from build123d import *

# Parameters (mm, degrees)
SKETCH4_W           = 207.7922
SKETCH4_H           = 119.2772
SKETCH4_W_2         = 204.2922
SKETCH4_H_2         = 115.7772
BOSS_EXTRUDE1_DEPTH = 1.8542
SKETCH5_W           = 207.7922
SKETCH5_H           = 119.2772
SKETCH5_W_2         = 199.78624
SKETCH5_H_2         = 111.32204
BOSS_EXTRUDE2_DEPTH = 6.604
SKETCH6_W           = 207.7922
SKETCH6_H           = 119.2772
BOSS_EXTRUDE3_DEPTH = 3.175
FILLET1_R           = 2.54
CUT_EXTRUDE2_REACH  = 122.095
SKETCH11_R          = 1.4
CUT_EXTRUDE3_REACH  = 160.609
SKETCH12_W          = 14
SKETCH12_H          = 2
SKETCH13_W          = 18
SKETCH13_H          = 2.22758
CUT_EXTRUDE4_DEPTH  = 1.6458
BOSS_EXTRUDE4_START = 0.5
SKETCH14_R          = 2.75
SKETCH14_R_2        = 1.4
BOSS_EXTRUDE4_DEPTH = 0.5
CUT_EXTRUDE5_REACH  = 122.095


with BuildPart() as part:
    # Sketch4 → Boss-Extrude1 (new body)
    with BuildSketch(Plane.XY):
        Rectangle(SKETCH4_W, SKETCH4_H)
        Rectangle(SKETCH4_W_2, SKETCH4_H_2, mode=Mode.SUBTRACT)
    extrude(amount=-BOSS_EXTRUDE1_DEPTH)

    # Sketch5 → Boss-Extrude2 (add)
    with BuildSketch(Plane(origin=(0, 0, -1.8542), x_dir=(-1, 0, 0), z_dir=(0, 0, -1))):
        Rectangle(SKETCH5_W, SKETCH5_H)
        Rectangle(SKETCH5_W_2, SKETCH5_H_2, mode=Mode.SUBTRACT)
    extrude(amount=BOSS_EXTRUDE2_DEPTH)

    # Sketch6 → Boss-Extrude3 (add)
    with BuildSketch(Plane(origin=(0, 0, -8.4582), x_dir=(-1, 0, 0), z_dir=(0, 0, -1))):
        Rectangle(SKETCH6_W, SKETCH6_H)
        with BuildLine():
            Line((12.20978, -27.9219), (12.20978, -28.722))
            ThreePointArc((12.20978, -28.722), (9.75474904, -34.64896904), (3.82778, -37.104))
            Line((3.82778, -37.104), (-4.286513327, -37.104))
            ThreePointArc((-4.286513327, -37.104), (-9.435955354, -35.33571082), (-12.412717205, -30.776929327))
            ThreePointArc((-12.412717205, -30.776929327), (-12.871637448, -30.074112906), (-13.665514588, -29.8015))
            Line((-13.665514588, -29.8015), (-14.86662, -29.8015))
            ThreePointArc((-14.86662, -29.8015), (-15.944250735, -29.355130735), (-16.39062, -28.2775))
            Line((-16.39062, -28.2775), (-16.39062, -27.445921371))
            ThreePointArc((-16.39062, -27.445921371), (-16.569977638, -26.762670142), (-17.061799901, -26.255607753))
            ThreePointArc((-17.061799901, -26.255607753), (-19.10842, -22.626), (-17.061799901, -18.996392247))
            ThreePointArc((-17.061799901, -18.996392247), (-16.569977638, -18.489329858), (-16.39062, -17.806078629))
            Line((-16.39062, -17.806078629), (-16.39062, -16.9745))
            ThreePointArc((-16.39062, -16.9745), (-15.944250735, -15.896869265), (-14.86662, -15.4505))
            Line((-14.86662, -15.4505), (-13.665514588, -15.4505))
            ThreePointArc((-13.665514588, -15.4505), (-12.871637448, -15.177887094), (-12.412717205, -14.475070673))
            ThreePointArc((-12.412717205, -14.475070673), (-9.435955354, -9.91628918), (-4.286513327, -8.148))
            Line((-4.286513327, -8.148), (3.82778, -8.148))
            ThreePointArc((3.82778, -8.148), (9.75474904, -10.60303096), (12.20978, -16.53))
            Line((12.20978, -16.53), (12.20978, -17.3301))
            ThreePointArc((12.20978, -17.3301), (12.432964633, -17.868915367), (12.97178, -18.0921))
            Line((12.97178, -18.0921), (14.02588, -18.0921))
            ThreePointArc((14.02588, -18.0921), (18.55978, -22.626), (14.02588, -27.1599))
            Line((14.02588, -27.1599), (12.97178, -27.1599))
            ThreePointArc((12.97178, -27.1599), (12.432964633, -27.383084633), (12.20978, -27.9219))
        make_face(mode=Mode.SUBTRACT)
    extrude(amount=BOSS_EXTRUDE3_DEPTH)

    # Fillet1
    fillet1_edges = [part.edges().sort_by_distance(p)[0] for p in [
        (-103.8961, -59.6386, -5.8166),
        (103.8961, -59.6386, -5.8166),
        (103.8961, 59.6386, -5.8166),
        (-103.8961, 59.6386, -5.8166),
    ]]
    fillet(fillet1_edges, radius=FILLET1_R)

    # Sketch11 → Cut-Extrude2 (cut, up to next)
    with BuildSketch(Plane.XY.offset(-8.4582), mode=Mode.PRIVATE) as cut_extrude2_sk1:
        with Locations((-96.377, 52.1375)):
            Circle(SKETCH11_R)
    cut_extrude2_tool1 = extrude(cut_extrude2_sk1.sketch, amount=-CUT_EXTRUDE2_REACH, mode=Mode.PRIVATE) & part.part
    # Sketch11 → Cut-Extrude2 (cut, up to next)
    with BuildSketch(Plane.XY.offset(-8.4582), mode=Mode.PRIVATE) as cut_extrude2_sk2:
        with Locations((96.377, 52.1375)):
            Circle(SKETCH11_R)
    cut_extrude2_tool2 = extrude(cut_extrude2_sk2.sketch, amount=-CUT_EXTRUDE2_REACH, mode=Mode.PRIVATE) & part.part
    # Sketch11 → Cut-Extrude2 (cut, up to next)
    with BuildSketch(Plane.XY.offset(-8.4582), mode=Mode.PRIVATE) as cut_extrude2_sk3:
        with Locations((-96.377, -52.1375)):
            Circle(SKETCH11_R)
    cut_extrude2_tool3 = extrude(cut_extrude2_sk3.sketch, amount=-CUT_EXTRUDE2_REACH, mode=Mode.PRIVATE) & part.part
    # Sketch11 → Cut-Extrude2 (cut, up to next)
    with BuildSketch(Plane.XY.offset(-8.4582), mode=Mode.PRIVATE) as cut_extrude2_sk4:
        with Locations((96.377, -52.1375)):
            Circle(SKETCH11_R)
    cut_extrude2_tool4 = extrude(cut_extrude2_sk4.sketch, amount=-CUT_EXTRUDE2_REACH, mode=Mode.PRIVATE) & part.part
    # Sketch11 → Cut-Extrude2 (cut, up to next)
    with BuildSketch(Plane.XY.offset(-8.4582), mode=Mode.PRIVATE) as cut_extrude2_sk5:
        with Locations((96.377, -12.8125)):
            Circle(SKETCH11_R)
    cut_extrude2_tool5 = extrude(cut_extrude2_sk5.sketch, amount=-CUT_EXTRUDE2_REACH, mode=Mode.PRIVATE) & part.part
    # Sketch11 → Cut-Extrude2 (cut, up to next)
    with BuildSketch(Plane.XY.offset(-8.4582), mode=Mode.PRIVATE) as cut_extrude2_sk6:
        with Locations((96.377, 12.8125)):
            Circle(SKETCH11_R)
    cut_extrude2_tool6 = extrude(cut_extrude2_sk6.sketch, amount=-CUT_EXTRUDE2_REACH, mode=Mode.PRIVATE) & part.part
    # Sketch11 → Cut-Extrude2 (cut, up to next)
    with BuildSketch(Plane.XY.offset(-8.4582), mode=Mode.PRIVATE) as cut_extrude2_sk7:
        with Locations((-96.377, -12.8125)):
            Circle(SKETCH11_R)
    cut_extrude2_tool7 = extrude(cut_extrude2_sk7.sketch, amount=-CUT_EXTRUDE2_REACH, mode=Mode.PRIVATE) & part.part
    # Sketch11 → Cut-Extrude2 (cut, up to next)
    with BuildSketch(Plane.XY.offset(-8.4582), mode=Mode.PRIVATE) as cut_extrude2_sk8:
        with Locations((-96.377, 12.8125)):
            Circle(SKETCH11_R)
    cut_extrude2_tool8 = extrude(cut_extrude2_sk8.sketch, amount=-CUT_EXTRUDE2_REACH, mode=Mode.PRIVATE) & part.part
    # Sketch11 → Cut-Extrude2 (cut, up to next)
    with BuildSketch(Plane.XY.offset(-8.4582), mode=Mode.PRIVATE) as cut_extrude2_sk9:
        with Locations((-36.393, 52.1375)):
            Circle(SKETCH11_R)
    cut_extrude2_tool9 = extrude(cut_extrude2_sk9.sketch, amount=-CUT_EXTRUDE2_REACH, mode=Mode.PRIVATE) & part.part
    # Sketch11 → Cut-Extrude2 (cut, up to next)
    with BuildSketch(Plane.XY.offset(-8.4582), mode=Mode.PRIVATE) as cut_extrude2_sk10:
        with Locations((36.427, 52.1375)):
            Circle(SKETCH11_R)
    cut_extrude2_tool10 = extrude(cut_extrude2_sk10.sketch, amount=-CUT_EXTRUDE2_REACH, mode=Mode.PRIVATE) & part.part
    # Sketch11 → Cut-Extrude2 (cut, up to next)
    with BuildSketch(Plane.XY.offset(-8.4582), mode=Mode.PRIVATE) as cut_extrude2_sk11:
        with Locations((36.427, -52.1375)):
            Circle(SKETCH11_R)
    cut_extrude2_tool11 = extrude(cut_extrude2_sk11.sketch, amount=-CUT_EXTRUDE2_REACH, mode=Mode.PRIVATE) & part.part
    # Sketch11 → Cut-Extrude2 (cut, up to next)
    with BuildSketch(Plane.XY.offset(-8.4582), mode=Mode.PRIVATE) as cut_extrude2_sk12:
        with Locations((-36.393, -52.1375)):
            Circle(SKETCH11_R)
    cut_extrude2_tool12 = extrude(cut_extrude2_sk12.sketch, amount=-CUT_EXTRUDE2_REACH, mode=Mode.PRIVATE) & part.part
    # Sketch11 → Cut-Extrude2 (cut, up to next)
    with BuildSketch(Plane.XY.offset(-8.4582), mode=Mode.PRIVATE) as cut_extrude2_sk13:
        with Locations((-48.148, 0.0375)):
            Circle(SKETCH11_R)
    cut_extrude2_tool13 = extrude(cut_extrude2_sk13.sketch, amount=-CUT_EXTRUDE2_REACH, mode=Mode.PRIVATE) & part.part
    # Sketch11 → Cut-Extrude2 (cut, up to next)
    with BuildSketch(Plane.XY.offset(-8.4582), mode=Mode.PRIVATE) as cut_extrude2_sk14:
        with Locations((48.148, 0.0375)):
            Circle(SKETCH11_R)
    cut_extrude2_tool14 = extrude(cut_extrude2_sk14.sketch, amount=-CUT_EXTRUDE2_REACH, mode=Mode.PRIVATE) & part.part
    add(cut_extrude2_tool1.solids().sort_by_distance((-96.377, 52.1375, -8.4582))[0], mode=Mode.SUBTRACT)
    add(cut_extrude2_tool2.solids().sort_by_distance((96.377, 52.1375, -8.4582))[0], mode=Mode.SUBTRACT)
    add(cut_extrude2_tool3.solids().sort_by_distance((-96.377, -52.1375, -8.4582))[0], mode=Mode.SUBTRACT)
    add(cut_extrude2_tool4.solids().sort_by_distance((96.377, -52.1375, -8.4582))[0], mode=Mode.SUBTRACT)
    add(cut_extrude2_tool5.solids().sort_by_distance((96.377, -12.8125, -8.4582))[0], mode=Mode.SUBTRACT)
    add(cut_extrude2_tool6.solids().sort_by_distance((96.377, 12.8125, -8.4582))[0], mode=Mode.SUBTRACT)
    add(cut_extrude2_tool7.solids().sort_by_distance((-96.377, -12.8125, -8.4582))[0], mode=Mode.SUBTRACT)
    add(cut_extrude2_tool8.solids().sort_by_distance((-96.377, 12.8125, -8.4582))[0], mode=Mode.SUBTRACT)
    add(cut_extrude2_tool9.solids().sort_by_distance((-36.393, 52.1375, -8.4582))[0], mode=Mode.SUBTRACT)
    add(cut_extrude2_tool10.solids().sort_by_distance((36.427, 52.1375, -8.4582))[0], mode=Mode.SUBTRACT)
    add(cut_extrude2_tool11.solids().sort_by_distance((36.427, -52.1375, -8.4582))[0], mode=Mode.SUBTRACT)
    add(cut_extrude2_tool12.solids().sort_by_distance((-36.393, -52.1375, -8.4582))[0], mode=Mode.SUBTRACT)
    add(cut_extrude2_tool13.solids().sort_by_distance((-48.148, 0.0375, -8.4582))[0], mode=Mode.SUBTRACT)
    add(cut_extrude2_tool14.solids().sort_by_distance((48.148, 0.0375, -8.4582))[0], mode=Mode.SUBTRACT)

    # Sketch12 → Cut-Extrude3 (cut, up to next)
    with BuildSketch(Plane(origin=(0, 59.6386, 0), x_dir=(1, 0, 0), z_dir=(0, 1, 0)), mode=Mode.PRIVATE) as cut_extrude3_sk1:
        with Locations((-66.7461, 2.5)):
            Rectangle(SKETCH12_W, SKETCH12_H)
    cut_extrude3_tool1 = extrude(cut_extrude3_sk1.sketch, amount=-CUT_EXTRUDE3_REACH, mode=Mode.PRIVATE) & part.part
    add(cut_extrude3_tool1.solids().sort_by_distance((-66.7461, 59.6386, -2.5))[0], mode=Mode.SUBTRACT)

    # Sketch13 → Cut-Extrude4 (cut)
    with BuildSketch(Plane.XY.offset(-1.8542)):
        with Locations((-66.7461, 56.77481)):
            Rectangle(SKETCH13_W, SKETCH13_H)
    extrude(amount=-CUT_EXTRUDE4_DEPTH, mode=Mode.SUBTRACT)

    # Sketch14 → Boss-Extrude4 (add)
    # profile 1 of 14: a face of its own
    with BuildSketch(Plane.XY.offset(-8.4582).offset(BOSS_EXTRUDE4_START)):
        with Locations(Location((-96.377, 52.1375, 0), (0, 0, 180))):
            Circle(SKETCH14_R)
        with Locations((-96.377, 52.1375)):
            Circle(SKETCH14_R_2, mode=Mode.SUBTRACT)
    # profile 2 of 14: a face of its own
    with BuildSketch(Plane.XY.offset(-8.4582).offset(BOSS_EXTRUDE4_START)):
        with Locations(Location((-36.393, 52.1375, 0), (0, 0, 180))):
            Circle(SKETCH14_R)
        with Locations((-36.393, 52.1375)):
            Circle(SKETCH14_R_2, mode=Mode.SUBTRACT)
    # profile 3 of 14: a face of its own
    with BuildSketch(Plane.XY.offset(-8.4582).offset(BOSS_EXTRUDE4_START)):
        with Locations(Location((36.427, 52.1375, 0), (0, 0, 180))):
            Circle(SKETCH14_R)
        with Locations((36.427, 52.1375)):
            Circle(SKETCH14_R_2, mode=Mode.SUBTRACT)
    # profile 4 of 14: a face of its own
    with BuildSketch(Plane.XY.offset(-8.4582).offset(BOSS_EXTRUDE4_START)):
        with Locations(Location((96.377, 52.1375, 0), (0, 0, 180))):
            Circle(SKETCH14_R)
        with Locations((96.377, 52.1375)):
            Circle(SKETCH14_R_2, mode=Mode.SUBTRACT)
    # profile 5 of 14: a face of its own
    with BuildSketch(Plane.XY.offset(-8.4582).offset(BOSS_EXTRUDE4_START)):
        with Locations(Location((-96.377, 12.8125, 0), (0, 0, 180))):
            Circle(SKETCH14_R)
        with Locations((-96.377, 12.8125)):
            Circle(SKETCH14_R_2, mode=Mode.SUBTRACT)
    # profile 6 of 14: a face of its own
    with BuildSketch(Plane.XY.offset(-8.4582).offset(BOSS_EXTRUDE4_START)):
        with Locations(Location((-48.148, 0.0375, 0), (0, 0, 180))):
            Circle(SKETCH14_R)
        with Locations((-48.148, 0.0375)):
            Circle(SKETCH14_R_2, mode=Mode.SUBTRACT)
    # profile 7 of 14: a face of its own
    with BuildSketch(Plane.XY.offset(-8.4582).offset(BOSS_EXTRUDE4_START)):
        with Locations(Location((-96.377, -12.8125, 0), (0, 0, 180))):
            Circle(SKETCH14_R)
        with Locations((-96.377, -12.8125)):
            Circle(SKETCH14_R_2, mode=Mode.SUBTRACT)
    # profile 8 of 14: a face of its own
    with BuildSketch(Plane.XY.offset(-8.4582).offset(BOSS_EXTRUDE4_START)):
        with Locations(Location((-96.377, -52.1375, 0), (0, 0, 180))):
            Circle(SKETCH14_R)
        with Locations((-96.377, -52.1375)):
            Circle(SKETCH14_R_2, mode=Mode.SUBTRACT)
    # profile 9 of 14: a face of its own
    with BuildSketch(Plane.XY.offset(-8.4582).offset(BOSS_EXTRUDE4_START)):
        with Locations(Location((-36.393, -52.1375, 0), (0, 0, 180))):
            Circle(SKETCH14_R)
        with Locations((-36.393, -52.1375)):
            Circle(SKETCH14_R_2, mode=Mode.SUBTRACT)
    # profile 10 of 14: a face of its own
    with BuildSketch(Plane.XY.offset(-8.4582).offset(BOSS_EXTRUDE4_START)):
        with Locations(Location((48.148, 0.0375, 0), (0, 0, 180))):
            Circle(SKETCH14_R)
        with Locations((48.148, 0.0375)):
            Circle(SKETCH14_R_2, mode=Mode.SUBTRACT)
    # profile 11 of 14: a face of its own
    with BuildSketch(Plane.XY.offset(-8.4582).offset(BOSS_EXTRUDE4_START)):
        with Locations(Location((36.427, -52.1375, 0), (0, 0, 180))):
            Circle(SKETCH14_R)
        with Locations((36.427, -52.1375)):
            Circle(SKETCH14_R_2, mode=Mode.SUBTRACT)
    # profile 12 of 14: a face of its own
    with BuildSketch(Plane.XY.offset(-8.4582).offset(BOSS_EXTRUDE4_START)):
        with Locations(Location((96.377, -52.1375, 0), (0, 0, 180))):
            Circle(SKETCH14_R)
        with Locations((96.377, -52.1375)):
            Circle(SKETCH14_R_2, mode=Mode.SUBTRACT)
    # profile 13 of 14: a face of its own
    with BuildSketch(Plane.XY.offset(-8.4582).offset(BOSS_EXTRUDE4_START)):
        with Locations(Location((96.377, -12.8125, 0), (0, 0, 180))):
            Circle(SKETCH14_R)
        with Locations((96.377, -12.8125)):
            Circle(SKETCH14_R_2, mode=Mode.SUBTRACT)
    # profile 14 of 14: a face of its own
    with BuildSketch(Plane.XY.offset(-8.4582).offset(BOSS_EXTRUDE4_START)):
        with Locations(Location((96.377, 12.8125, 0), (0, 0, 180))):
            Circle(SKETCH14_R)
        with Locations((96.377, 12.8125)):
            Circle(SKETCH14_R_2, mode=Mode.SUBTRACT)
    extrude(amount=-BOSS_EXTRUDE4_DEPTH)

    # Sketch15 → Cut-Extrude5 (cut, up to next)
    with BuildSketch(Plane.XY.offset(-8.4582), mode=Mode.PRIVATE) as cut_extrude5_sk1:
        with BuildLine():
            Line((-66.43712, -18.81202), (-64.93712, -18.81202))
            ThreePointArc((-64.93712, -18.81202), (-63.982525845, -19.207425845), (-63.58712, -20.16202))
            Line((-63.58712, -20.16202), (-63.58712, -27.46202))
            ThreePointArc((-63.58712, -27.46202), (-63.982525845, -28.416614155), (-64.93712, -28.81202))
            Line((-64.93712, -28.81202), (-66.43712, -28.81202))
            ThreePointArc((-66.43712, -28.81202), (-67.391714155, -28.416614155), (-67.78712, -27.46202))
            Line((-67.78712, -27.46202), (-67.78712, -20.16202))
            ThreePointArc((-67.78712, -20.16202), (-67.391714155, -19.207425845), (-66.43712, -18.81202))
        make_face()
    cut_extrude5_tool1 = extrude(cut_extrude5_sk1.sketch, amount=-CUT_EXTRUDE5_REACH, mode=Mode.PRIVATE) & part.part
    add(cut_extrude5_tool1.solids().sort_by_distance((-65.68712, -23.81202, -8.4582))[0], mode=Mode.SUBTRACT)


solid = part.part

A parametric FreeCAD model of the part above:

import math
import FreeCAD as App
import Part
import Sketcher
Q = App.Units.Quantity


def edges_at(feature, points):
    """Names of the edges that pass closest to the given points."""
    edges = feature.Shape.Edges
    near = lambda p: min(range(len(edges)), key=lambda i: edges[i].distToShape(Part.Vertex(*p))[0])
    return sorted({f"Edge{near(p) + 1}" for p in points})


def add_polygon(sketch, points):
    """Adds a closed chain of lines whose ends are joined by coincident constraints."""
    first, n = sketch.GeometryCount, len(points)
    for a, b in zip(points, points[1:] + points[:1]):
        sketch.addGeometry(Part.LineSegment(App.Vector(*a, 0), App.Vector(*b, 0)), False)
    for i in range(n):
        sketch.addConstraint(Sketcher.Constraint("Coincident", first + i, 2, first + (i + 1) % n, 1))

doc = App.newDocument("Part")
params = doc.addObject("Spreadsheet::Sheet", "Params")
for row, (alias, value) in enumerate([
    ("sketch1_width", "8.043 in"),
    ("pad1_length", "0.073 in"),
    ("pad2_length", "0.26 in"),
    ("sketch3_radius", "0.03 in"),
    ("sketch3_radius2", "0.33 in"),
    ("sketch3_radius3", "0.06 in"),
    ("sketch3_radius4", "0.167 in"),
    ("pad3_length", "0.125 in"),
    ("fillet_radius", "0.1 in"),
    ("pocket16_length", "1.6458 mm"),
    ("pad4_length", "0.5 mm"),
], start=1):
    params.set(f"A{row}", alias)
    params.set(f"B{row}", "=" + value)
    params.setAlias(f"B{row}", alias)

body = doc.addObject("PartDesign::Body", "Body")

# Sketch on XY plane
sketch1 = body.newObject("Sketcher::SketchObject", "Sketch")
sketch1.AttachmentSupport = (doc.getObject("XY_Plane"), [""])
sketch1.MapMode = "FlatFace"
add_polygon(sketch1, [(-104, 60), (-104, -60), (104, -60), (104, 60)])  # lines 0-3
add_polygon(sketch1, [(102, -58), (-102, -58), (-102, 58), (102, 58)])  # lines 4-7
sketch1.addConstraint([
    Sketcher.Constraint("Vertical", 0),
    Sketcher.Constraint("Horizontal", 1),
    Sketcher.Constraint("Vertical", 2),
    Sketcher.Constraint("Horizontal", 3),
    Sketcher.Constraint("Horizontal", 4),
    Sketcher.Constraint("Vertical", 5),
    Sketcher.Constraint("Horizontal", 6),
    Sketcher.Constraint("Vertical", 7),
    Sketcher.Constraint("Symmetric", 0, 2, 2, 2, -1, 1),
    Sketcher.Constraint("Symmetric", 4, 2, 6, 2, -1, 1),
    Sketcher.Constraint("DistanceX", 4, 2, 4, 1, Q("8.043 in")),
    Sketcher.Constraint("DistanceX", 1, 1, 1, 2, Q("207.7922 mm")),
    Sketcher.Constraint("DistanceY", 0, 2, 0, 1, Q("119.2772 mm")),
    Sketcher.Constraint("DistanceY", 5, 1, 5, 2, Q("115.7772 mm")),
])
sketch1.setExpression("Constraints[18]", "Params.sketch1_width")
pad1 = body.newObject("PartDesign::Pad", "Pad")
pad1.Profile = sketch1
pad1.setExpression("Length", "Params.pad1_length")
pad1.Reversed = True

# Sketch on XY plane
sketch2 = body.newObject("Sketcher::SketchObject", "Sketch001")
sketch2.AttachmentSupport = (doc.getObject("XY_Plane"), [""])
sketch2.MapMode = "FlatFace"
sketch2.AttachmentOffset = App.Placement(App.Vector(0, 0, -0.073 * 25.4), App.Rotation())
add_polygon(sketch2, [(104, 60), (104, -60), (-104, -60), (-104, 60)])  # lines 0-3
add_polygon(sketch2, [(-100, -56), (100, -56), (100, 56), (-100, 56)])  # lines 4-7
sketch2.addConstraint([
    Sketcher.Constraint("Vertical", 0),
    Sketcher.Constraint("Horizontal", 1),
    Sketcher.Constraint("Vertical", 2),
    Sketcher.Constraint("Horizontal", 3),
    Sketcher.Constraint("Horizontal", 4),
    Sketcher.Constraint("Vertical", 5),
    Sketcher.Constraint("Horizontal", 6),
    Sketcher.Constraint("Vertical", 7),
    Sketcher.Constraint("Symmetric", 0, 2, 2, 2, -1, 1),
    Sketcher.Constraint("Symmetric", 4, 2, 6, 2, -1, 1),
    Sketcher.Constraint("DistanceX", 4, 1, 4, 2, Q("7.8656 in")),
    Sketcher.Constraint("DistanceX", 1, 2, 1, 1, Q("207.7922 mm")),
    Sketcher.Constraint("DistanceY", 0, 2, 0, 1, Q("119.2772 mm")),
    Sketcher.Constraint("DistanceY", 5, 1, 5, 2, Q("111.32204 mm")),
])
pad2 = body.newObject("PartDesign::Pad", "Pad001")
pad2.Profile = sketch2
pad2.setExpression("Length", "Params.pad2_length")
pad2.Reversed = True

# Sketch on XY plane
sketch3 = body.newObject("Sketcher::SketchObject", "Sketch002")
sketch3.AttachmentSupport = (doc.getObject("XY_Plane"), [""])
sketch3.MapMode = "FlatFace"
sketch3.AttachmentOffset = App.Placement(App.Vector(0, 0, -0.333 * 25.4), App.Rotation())
add_polygon(sketch3, [(103.9, 59.6), (103.9, -59.6), (-103.9, -59.6), (-103.9, 59.6)])  # lines 0-3
sketch3.addGeometry(Part.ArcOfCircle(Part.Circle(App.Vector(-13, -27.9, 0), App.Vector(0, 0, 1), 0.8), math.radians(0), math.radians(90)), False)  # 4
sketch3.addGeometry(Part.LineSegment(App.Vector(-12.2, -27.9, 0), App.Vector(-12.2, -28.7, 0)), False)  # 5
sketch3.addGeometry(Part.ArcOfCircle(Part.Circle(App.Vector(-3.8, -28.7, 0), App.Vector(0, 0, 1), 8.4), math.radians(180), math.radians(270)), False)  # 6
sketch3.addGeometry(Part.LineSegment(App.Vector(-3.8, -37.1, 0), App.Vector(4.3, -37.1, 0)), False)  # 7
sketch3.addGeometry(Part.ArcOfCircle(Part.Circle(App.Vector(4.3, -28.7, 0), App.Vector(0, 0, 1), 8.4), math.radians(-90), math.radians(-14)), False)  # 8
sketch3.addGeometry(Part.ArcOfCircle(Part.Circle(App.Vector(13.7, -31.1, 0), App.Vector(0, 0, 1), 1.3), math.radians(90), math.radians(166)), False)  # 9
sketch3.addGeometry(Part.LineSegment(App.Vector(13.7, -29.8, 0), App.Vector(14.9, -29.8, 0)), False)  # 10
sketch3.addGeometry(Part.ArcOfCircle(Part.Circle(App.Vector(14.9, -28.3, 0), App.Vector(0, 0, 1), 1.5), math.radians(-90), math.radians(0)), False)  # 11
sketch3.addGeometry(Part.LineSegment(App.Vector(16.4, -28.3, 0), App.Vector(16.4, -27.4, 0)), False)  # 12
sketch3.addGeometry(Part.ArcOfCircle(Part.Circle(App.Vector(17.8, -27.4, 0), App.Vector(0, 0, 1), 1.4), math.radians(121), math.radians(180)), False)  # 13
sketch3.addGeometry(Part.ArcOfCircle(Part.Circle(App.Vector(14.9, -22.6, 0), App.Vector(0, 0, 1), 4.2), math.radians(-59), math.radians(59)), False)  # 14
sketch3.addGeometry(Part.ArcOfCircle(Part.Circle(App.Vector(17.8, -17.8, 0), App.Vector(0, 0, 1), 1.4), math.radians(180), math.radians(239)), False)  # 15
sketch3.addGeometry(Part.LineSegment(App.Vector(16.4, -17.8, 0), App.Vector(16.4, -17, 0)), False)  # 16
sketch3.addGeometry(Part.ArcOfCircle(Part.Circle(App.Vector(14.9, -17, 0), App.Vector(0, 0, 1), 1.5), math.radians(0), math.radians(90)), False)  # 17
sketch3.addGeometry(Part.LineSegment(App.Vector(14.9, -15.5, 0), App.Vector(13.7, -15.5, 0)), False)  # 18
sketch3.addGeometry(Part.ArcOfCircle(Part.Circle(App.Vector(13.7, -14.2, 0), App.Vector(0, 0, 1), 1.3), math.radians(-166), math.radians(-90)), False)  # 19
sketch3.addGeometry(Part.ArcOfCircle(Part.Circle(App.Vector(4.3, -16.5, 0), App.Vector(0, 0, 1), 8.4), math.radians(14), math.radians(90)), False)  # 20
sketch3.addGeometry(Part.LineSegment(App.Vector(4.3, -8.1, 0), App.Vector(-3.8, -8.1, 0)), False)  # 21
sketch3.addGeometry(Part.ArcOfCircle(Part.Circle(App.Vector(-3.8, -16.5, 0), App.Vector(0, 0, 1), 8.4), math.radians(90), math.radians(180)), False)  # 22
sketch3.addGeometry(Part.LineSegment(App.Vector(-12.2, -16.5, 0), App.Vector(-12.2, -17.3, 0)), False)  # 23
sketch3.addGeometry(Part.ArcOfCircle(Part.Circle(App.Vector(-13, -17.3, 0), App.Vector(0, 0, 1), 0.8), math.radians(-90), math.radians(0)), False)  # 24
sketch3.addGeometry(Part.LineSegment(App.Vector(-13, -18.1, 0), App.Vector(-14, -18.1, 0)), False)  # 25
sketch3.addGeometry(Part.ArcOfCircle(Part.Circle(App.Vector(-14, -22.6, 0), App.Vector(0, 0, 1), 4.5), math.radians(90), math.radians(270)), False)  # 26
sketch3.addGeometry(Part.LineSegment(App.Vector(-14, -27.2, 0), App.Vector(-13, -27.2, 0)), False)  # 27
sketch3.addConstraint([
    Sketcher.Constraint("Tangent", 4, 1, 5, 1),
    Sketcher.Constraint("Tangent", 5, 2, 6, 1),
    Sketcher.Constraint("Tangent", 6, 2, 7, 1),
    Sketcher.Constraint("Tangent", 7, 2, 8, 1),
    Sketcher.Constraint("Tangent", 8, 2, 9, 2),
    Sketcher.Constraint("Tangent", 9, 1, 10, 1),
    Sketcher.Constraint("Tangent", 10, 2, 11, 1),
    Sketcher.Constraint("Tangent", 11, 2, 12, 1),
    Sketcher.Constraint("Tangent", 12, 2, 13, 2),
    Sketcher.Constraint("Tangent", 13, 1, 14, 1),
    Sketcher.Constraint("Tangent", 14, 2, 15, 2),
    Sketcher.Constraint("Tangent", 15, 1, 16, 1),
    Sketcher.Constraint("Tangent", 16, 2, 17, 1),
    Sketcher.Constraint("Tangent", 17, 2, 18, 1),
    Sketcher.Constraint("Tangent", 18, 2, 19, 2),
    Sketcher.Constraint("Tangent", 19, 1, 20, 1),
    Sketcher.Constraint("Tangent", 20, 2, 21, 1),
    Sketcher.Constraint("Tangent", 21, 2, 22, 1),
    Sketcher.Constraint("Tangent", 22, 2, 23, 1),
    Sketcher.Constraint("Tangent", 23, 2, 24, 2),
    Sketcher.Constraint("Tangent", 24, 1, 25, 1),
    Sketcher.Constraint("Tangent", 25, 2, 26, 1),
    Sketcher.Constraint("Tangent", 26, 2, 27, 1),
    Sketcher.Constraint("Tangent", 27, 2, 4, 2),
    Sketcher.Constraint("Vertical", 0),
    Sketcher.Constraint("Horizontal", 1),
    Sketcher.Constraint("Vertical", 2),
    Sketcher.Constraint("Horizontal", 3),
    Sketcher.Constraint("Vertical", 5),
    Sketcher.Constraint("Horizontal", 7),
    Sketcher.Constraint("Horizontal", 10),
    Sketcher.Constraint("Vertical", 12),
    Sketcher.Constraint("Vertical", 16),
    Sketcher.Constraint("Horizontal", 18),
    Sketcher.Constraint("Horizontal", 21),
    Sketcher.Constraint("Vertical", 23),
    Sketcher.Constraint("Horizontal", 25),
    Sketcher.Constraint("Horizontal", 27),
    Sketcher.Constraint("Equal", 6, 8),
    Sketcher.Constraint("Equal", 13, 15),
    Sketcher.Constraint("Equal", 11, 17),
    Sketcher.Constraint("Equal", 9, 19),
    Sketcher.Constraint("Equal", 8, 20),
    Sketcher.Constraint("Equal", 20, 22),
    Sketcher.Constraint("Equal", 4, 24),
    Sketcher.Constraint("Symmetric", 0, 2, 2, 2, -1, 1),
    Sketcher.Constraint("Horizontal", 14, 3, 26, 3),
    Sketcher.Constraint("Vertical", 11, 3, 14, 3),
    Sketcher.Constraint("Vertical", 13, 3, 15, 3),
    Sketcher.Constraint("Vertical", 9, 3, 19, 3),
    Sketcher.Constraint("Vertical", 8, 3, 20, 3),
    Sketcher.Constraint("Vertical", 6, 3, 22, 3),
    Sketcher.Constraint("Equal", 12, 16),
    Sketcher.Constraint("Radius", 4, Q("0.03 in")),
    Sketcher.Constraint("Radius", 6, Q("0.33 in")),
    Sketcher.Constraint("Radius", 11, Q("0.06 in")),
    Sketcher.Constraint("Radius", 14, Q("0.167 in")),
    Sketcher.Constraint("Radius", 26, Q("0.1785 in")),
    Sketcher.Constraint("DistanceY", 8, 3, 14, 3, Q("0.24 in")),
    Sketcher.Constraint("DistanceX", 25, 2, 25, 1, Q("0.0415 in")),
    Sketcher.Constraint("Radius", 13, Q("1.391079 mm")),
    Sketcher.Constraint("DistanceX", 6, 3, 11, 3, Q("0.736 in")),
    Sketcher.Constraint("DistanceY", 11, 3, 4, 3, Q("0.014 in")),
    Sketcher.Constraint("DistanceX", 1, 2, 1, 1, Q("207.7922 mm")),
    Sketcher.Constraint("DistanceY", 0, 2, 0, 1, Q("119.2772 mm")),
    Sketcher.Constraint("DistanceX", 4, 3, -1, 1, Q("0.5107 in")),
    Sketcher.Constraint("Radius", 9, Q("1.292233 mm")),
    Sketcher.Constraint("DistanceY", 4, 3, -1, 1, Q("27.9219 mm")),
    Sketcher.Constraint("DistanceX", 7, 1, 7, 2, Q("8.114293 mm")),
])
sketch3.setExpression("Constraints[57]", "Params.sketch3_radius")
sketch3.setExpression("Constraints[58]", "Params.sketch3_radius2")
sketch3.setExpression("Constraints[59]", "Params.sketch3_radius3")
sketch3.setExpression("Constraints[60]", "Params.sketch3_radius4")
pad3 = body.newObject("PartDesign::Pad", "Pad002")
pad3.Profile = sketch3
pad3.setExpression("Length", "Params.pad3_length")
pad3.Reversed = True
doc.recompute()

fillet = body.newObject("PartDesign::Fillet", "Fillet")
fillet.Base = (pad3, edges_at(pad3, [
    (-103.896, -59.639, -5.817),
    (103.896, -59.639, -5.817),
    (103.896, 59.639, -5.817),
    (-103.896, 59.639, -5.817),
]))
fillet.setExpression("Radius", "Params.fillet_radius")

# Sketch on XY plane
sketch4 = body.newObject("Sketcher::SketchObject", "Sketch003")
sketch4.AttachmentSupport = (doc.getObject("XY_Plane"), [""])
sketch4.MapMode = "FlatFace"
sketch4.AttachmentOffset = App.Placement(App.Vector(0, 0, -0.333 * 25.4), App.Rotation())
sketch4.addGeometry(Part.Circle(App.Vector(-96.4, 52.1, 0), App.Vector(0, 0, 1), 1.4), False)
sketch4.addConstraint([
    Sketcher.Constraint("Diameter", 0, Q("2.8 mm")),
    Sketcher.Constraint("DistanceX", 0, 3, -1, 1, Q("96.377 mm")),
    Sketcher.Constraint("DistanceY", -1, 1, 0, 3, Q("52.1375 mm")),
])
pocket1 = body.newObject("PartDesign::Pocket", "Pocket")
pocket1.Profile = sketch4
pocket1.Type = "UpToFirst"

# Sketch on XY plane
sketch5 = body.newObject("Sketcher::SketchObject", "Sketch004")
sketch5.AttachmentSupport = (doc.getObject("XY_Plane"), [""])
sketch5.MapMode = "FlatFace"
sketch5.AttachmentOffset = App.Placement(App.Vector(0, 0, -0.333 * 25.4), App.Rotation())
sketch5.addGeometry(Part.Circle(App.Vector(96.4, 52.1, 0), App.Vector(0, 0, 1), 1.4), False)
sketch5.addConstraint([
    Sketcher.Constraint("Diameter", 0, Q("2.8 mm")),
    Sketcher.Constraint("DistanceX", -1, 1, 0, 3, Q("96.377 mm")),
    Sketcher.Constraint("DistanceY", -1, 1, 0, 3, Q("52.1375 mm")),
])
pocket2 = body.newObject("PartDesign::Pocket", "Pocket001")
pocket2.Profile = sketch5
pocket2.Type = "UpToFirst"

# Sketch on XY plane
sketch6 = body.newObject("Sketcher::SketchObject", "Sketch005")
sketch6.AttachmentSupport = (doc.getObject("XY_Plane"), [""])
sketch6.MapMode = "FlatFace"
sketch6.AttachmentOffset = App.Placement(App.Vector(0, 0, -0.333 * 25.4), App.Rotation())
sketch6.addGeometry(Part.Circle(App.Vector(-96.4, -52.1, 0), App.Vector(0, 0, 1), 1.4), False)
sketch6.addConstraint([
    Sketcher.Constraint("Diameter", 0, Q("2.8 mm")),
    Sketcher.Constraint("DistanceX", 0, 3, -1, 1, Q("96.377 mm")),
    Sketcher.Constraint("DistanceY", 0, 3, -1, 1, Q("52.1375 mm")),
])
pocket3 = body.newObject("PartDesign::Pocket", "Pocket002")
pocket3.Profile = sketch6
pocket3.Type = "UpToFirst"

# Sketch on XY plane
sketch7 = body.newObject("Sketcher::SketchObject", "Sketch006")
sketch7.AttachmentSupport = (doc.getObject("XY_Plane"), [""])
sketch7.MapMode = "FlatFace"
sketch7.AttachmentOffset = App.Placement(App.Vector(0, 0, -0.333 * 25.4), App.Rotation())
sketch7.addGeometry(Part.Circle(App.Vector(96.4, -52.1, 0), App.Vector(0, 0, 1), 1.4), False)
sketch7.addConstraint([
    Sketcher.Constraint("Diameter", 0, Q("2.8 mm")),
    Sketcher.Constraint("DistanceX", -1, 1, 0, 3, Q("96.377 mm")),
    Sketcher.Constraint("DistanceY", 0, 3, -1, 1, Q("52.1375 mm")),
])
pocket4 = body.newObject("PartDesign::Pocket", "Pocket003")
pocket4.Profile = sketch7
pocket4.Type = "UpToFirst"

# Sketch on XY plane
sketch8 = body.newObject("Sketcher::SketchObject", "Sketch007")
sketch8.AttachmentSupport = (doc.getObject("XY_Plane"), [""])
sketch8.MapMode = "FlatFace"
sketch8.AttachmentOffset = App.Placement(App.Vector(0, 0, -0.333 * 25.4), App.Rotation())
sketch8.addGeometry(Part.Circle(App.Vector(96.4, -12.8, 0), App.Vector(0, 0, 1), 1.4), False)
sketch8.addConstraint([
    Sketcher.Constraint("Diameter", 0, Q("2.8 mm")),
    Sketcher.Constraint("DistanceX", -1, 1, 0, 3, Q("96.377 mm")),
    Sketcher.Constraint("DistanceY", 0, 3, -1, 1, Q("12.8125 mm")),
])
pocket5 = body.newObject("PartDesign::Pocket", "Pocket004")
pocket5.Profile = sketch8
pocket5.Type = "UpToFirst"

# Sketch on XY plane
sketch9 = body.newObject("Sketcher::SketchObject", "Sketch008")
sketch9.AttachmentSupport = (doc.getObject("XY_Plane"), [""])
sketch9.MapMode = "FlatFace"
sketch9.AttachmentOffset = App.Placement(App.Vector(0, 0, -0.333 * 25.4), App.Rotation())
sketch9.addGeometry(Part.Circle(App.Vector(96.4, 12.8, 0), App.Vector(0, 0, 1), 1.4), False)
sketch9.addConstraint([
    Sketcher.Constraint("Diameter", 0, Q("2.8 mm")),
    Sketcher.Constraint("DistanceX", -1, 1, 0, 3, Q("96.377 mm")),
    Sketcher.Constraint("DistanceY", -1, 1, 0, 3, Q("12.8125 mm")),
])
pocket6 = body.newObject("PartDesign::Pocket", "Pocket005")
pocket6.Profile = sketch9
pocket6.Type = "UpToFirst"

# Sketch on XY plane
sketch10 = body.newObject("Sketcher::SketchObject", "Sketch009")
sketch10.AttachmentSupport = (doc.getObject("XY_Plane"), [""])
sketch10.MapMode = "FlatFace"
sketch10.AttachmentOffset = App.Placement(App.Vector(0, 0, -0.333 * 25.4), App.Rotation())
sketch10.addGeometry(Part.Circle(App.Vector(-96.4, -12.8, 0), App.Vector(0, 0, 1), 1.4), False)
sketch10.addConstraint([
    Sketcher.Constraint("Diameter", 0, Q("2.8 mm")),
    Sketcher.Constraint("DistanceX", 0, 3, -1, 1, Q("96.377 mm")),
    Sketcher.Constraint("DistanceY", 0, 3, -1, 1, Q("12.8125 mm")),
])
pocket7 = body.newObject("PartDesign::Pocket", "Pocket006")
pocket7.Profile = sketch10
pocket7.Type = "UpToFirst"

# Sketch on XY plane
sketch11 = body.newObject("Sketcher::SketchObject", "Sketch010")
sketch11.AttachmentSupport = (doc.getObject("XY_Plane"), [""])
sketch11.MapMode = "FlatFace"
sketch11.AttachmentOffset = App.Placement(App.Vector(0, 0, -0.333 * 25.4), App.Rotation())
sketch11.addGeometry(Part.Circle(App.Vector(-96.4, 12.8, 0), App.Vector(0, 0, 1), 1.4), False)
sketch11.addConstraint([
    Sketcher.Constraint("Diameter", 0, Q("2.8 mm")),
    Sketcher.Constraint("DistanceX", 0, 3, -1, 1, Q("96.377 mm")),
    Sketcher.Constraint("DistanceY", -1, 1, 0, 3, Q("12.8125 mm")),
])
pocket8 = body.newObject("PartDesign::Pocket", "Pocket007")
pocket8.Profile = sketch11
pocket8.Type = "UpToFirst"

# Sketch on XY plane
sketch12 = body.newObject("Sketcher::SketchObject", "Sketch011")
sketch12.AttachmentSupport = (doc.getObject("XY_Plane"), [""])
sketch12.MapMode = "FlatFace"
sketch12.AttachmentOffset = App.Placement(App.Vector(0, 0, -0.333 * 25.4), App.Rotation())
sketch12.addGeometry(Part.Circle(App.Vector(-36.4, 52.1, 0), App.Vector(0, 0, 1), 1.4), False)
sketch12.addConstraint([
    Sketcher.Constraint("Diameter", 0, Q("2.8 mm")),
    Sketcher.Constraint("DistanceX", 0, 3, -1, 1, Q("36.393 mm")),
    Sketcher.Constraint("DistanceY", -1, 1, 0, 3, Q("52.1375 mm")),
])
pocket9 = body.newObject("PartDesign::Pocket", "Pocket008")
pocket9.Profile = sketch12
pocket9.Type = "UpToFirst"

# Sketch on XY plane
sketch13 = body.newObject("Sketcher::SketchObject", "Sketch012")
sketch13.AttachmentSupport = (doc.getObject("XY_Plane"), [""])
sketch13.MapMode = "FlatFace"
sketch13.AttachmentOffset = App.Placement(App.Vector(0, 0, -0.333 * 25.4), App.Rotation())
sketch13.addGeometry(Part.Circle(App.Vector(36.4, 52.1, 0), App.Vector(0, 0, 1), 1.4), False)
sketch13.addConstraint([
    Sketcher.Constraint("Diameter", 0, Q("2.8 mm")),
    Sketcher.Constraint("DistanceX", -1, 1, 0, 3, Q("36.427 mm")),
    Sketcher.Constraint("DistanceY", -1, 1, 0, 3, Q("52.1375 mm")),
])
pocket10 = body.newObject("PartDesign::Pocket", "Pocket009")
pocket10.Profile = sketch13
pocket10.Type = "UpToFirst"

# Sketch on XY plane
sketch14 = body.newObject("Sketcher::SketchObject", "Sketch013")
sketch14.AttachmentSupport = (doc.getObject("XY_Plane"), [""])
sketch14.MapMode = "FlatFace"
sketch14.AttachmentOffset = App.Placement(App.Vector(0, 0, -0.333 * 25.4), App.Rotation())
sketch14.addGeometry(Part.Circle(App.Vector(36.4, -52.1, 0), App.Vector(0, 0, 1), 1.4), False)
sketch14.addConstraint([
    Sketcher.Constraint("Diameter", 0, Q("2.8 mm")),
    Sketcher.Constraint("DistanceX", -1, 1, 0, 3, Q("36.427 mm")),
    Sketcher.Constraint("DistanceY", 0, 3, -1, 1, Q("52.1375 mm")),
])
pocket11 = body.newObject("PartDesign::Pocket", "Pocket010")
pocket11.Profile = sketch14
pocket11.Type = "UpToFirst"

# Sketch on XY plane
sketch15 = body.newObject("Sketcher::SketchObject", "Sketch014")
sketch15.AttachmentSupport = (doc.getObject("XY_Plane"), [""])
sketch15.MapMode = "FlatFace"
sketch15.AttachmentOffset = App.Placement(App.Vector(0, 0, -0.333 * 25.4), App.Rotation())
sketch15.addGeometry(Part.Circle(App.Vector(-36.4, -52.1, 0), App.Vector(0, 0, 1), 1.4), False)
sketch15.addConstraint([
    Sketcher.Constraint("Diameter", 0, Q("2.8 mm")),
    Sketcher.Constraint("DistanceX", 0, 3, -1, 1, Q("36.393 mm")),
    Sketcher.Constraint("DistanceY", 0, 3, -1, 1, Q("52.1375 mm")),
])
pocket12 = body.newObject("PartDesign::Pocket", "Pocket011")
pocket12.Profile = sketch15
pocket12.Type = "UpToFirst"

# Sketch on XY plane
sketch16 = body.newObject("Sketcher::SketchObject", "Sketch015")
sketch16.AttachmentSupport = (doc.getObject("XY_Plane"), [""])
sketch16.MapMode = "FlatFace"
sketch16.AttachmentOffset = App.Placement(App.Vector(0, 0, -0.333 * 25.4), App.Rotation())
sketch16.addGeometry(Part.Circle(App.Vector(-48.1, 0, 0), App.Vector(0, 0, 1), 1.4), False)
sketch16.addConstraint([
    Sketcher.Constraint("Diameter", 0, Q("2.8 mm")),
    Sketcher.Constraint("DistanceX", 0, 3, -1, 1, Q("48.148 mm")),
    Sketcher.Constraint("DistanceY", -1, 1, 0, 3, Q("0.0375 mm")),
])
pocket13 = body.newObject("PartDesign::Pocket", "Pocket012")
pocket13.Profile = sketch16
pocket13.Type = "UpToFirst"

# Sketch on XY plane
sketch17 = body.newObject("Sketcher::SketchObject", "Sketch016")
sketch17.AttachmentSupport = (doc.getObject("XY_Plane"), [""])
sketch17.MapMode = "FlatFace"
sketch17.AttachmentOffset = App.Placement(App.Vector(0, 0, -0.333 * 25.4), App.Rotation())
sketch17.addGeometry(Part.Circle(App.Vector(48.1, 0, 0), App.Vector(0, 0, 1), 1.4), False)
sketch17.addConstraint([
    Sketcher.Constraint("Diameter", 0, Q("2.8 mm")),
    Sketcher.Constraint("DistanceX", -1, 1, 0, 3, Q("48.148 mm")),
    Sketcher.Constraint("DistanceY", -1, 1, 0, 3, Q("0.0375 mm")),
])
pocket14 = body.newObject("PartDesign::Pocket", "Pocket013")
pocket14.Profile = sketch17
pocket14.Type = "UpToFirst"

# Sketch on XZ plane
sketch18 = body.newObject("Sketcher::SketchObject", "Sketch017")
sketch18.AttachmentSupport = (doc.getObject("XZ_Plane"), [""])
sketch18.MapMode = "FlatFace"
sketch18.AttachmentOffset = App.Placement(App.Vector(0, 0, -59.6386), App.Rotation())
add_polygon(sketch18, [(-73.7, -3.5), (-73.7, -1.5), (-59.7, -1.5), (-59.7, -3.5)])  # lines 0-3
sketch18.addConstraint([
    Sketcher.Constraint("Vertical", 0),
    Sketcher.Constraint("Horizontal", 1),
    Sketcher.Constraint("Vertical", 2),
    Sketcher.Constraint("Horizontal", 3),
    Sketcher.Constraint("DistanceX", 1, 1, 1, 2, Q("14 mm")),
    Sketcher.Constraint("DistanceY", 0, 1, 0, 2, Q("2 mm")),
    Sketcher.Constraint("DistanceX", 0, 2, -1, 1, Q("73.7461 mm")),
    Sketcher.Constraint("DistanceY", 0, 2, -1, 1, Q("1.5 mm")),
])
pocket15 = body.newObject("PartDesign::Pocket", "Pocket014")
pocket15.Profile = sketch18
pocket15.Type = "UpToFirst"
pocket15.Reversed = True

# Sketch on XY plane
sketch19 = body.newObject("Sketcher::SketchObject", "Sketch018")
sketch19.AttachmentSupport = (doc.getObject("XY_Plane"), [""])
sketch19.MapMode = "FlatFace"
sketch19.AttachmentOffset = App.Placement(App.Vector(0, 0, -0.073 * 25.4), App.Rotation())
add_polygon(sketch19, [(-75.7, 57.9), (-75.7, 55.7), (-57.7, 55.7), (-57.7, 57.9)])  # lines 0-3
sketch19.addConstraint([
    Sketcher.Constraint("Vertical", 0),
    Sketcher.Constraint("Horizontal", 1),
    Sketcher.Constraint("Vertical", 2),
    Sketcher.Constraint("Horizontal", 3),
    Sketcher.Constraint("DistanceY", 0, 2, 0, 1, Q("0.0877 in")),
    Sketcher.Constraint("DistanceX", 1, 1, 1, 2, Q("18 mm")),
    Sketcher.Constraint("DistanceX", 0, 2, -1, 1, Q("75.7461 mm")),
    Sketcher.Constraint("DistanceY", -1, 1, 2, 2, Q("57.8886 mm")),
])
pocket16 = body.newObject("PartDesign::Pocket", "Pocket015")
pocket16.Profile = sketch19
pocket16.setExpression("Length", "Params.pocket16_length")

# Sketch on XY plane
sketch20 = body.newObject("Sketcher::SketchObject", "Sketch019")
sketch20.AttachmentSupport = (doc.getObject("XY_Plane"), [""])
sketch20.MapMode = "FlatFace"
sketch20.AttachmentOffset = App.Placement(App.Vector(0, 0, -7.9582), App.Rotation())
sketch20.addGeometry([
    Part.Circle(App.Vector(-96.4, 52.1, 0), App.Vector(0, 0, 1), 2.8),  # 0
    Part.Circle(App.Vector(-96.4, 52.1, 0), App.Vector(0, 0, 1), 1.4),  # 1
    Part.Circle(App.Vector(-36.4, 52.1, 0), App.Vector(0, 0, 1), 2.8),  # 2
    Part.Circle(App.Vector(-36.4, 52.1, 0), App.Vector(0, 0, 1), 1.4),  # 3
    Part.Circle(App.Vector(36.4, 52.1, 0), App.Vector(0, 0, 1), 2.8),  # 4
    Part.Circle(App.Vector(36.4, 52.1, 0), App.Vector(0, 0, 1), 1.4),  # 5
    Part.Circle(App.Vector(96.4, 52.1, 0), App.Vector(0, 0, 1), 2.8),  # 6
    Part.Circle(App.Vector(96.4, 52.1, 0), App.Vector(0, 0, 1), 1.4),  # 7
    Part.Circle(App.Vector(-96.4, 12.8, 0), App.Vector(0, 0, 1), 2.8),  # 8
    Part.Circle(App.Vector(-96.4, 12.8, 0), App.Vector(0, 0, 1), 1.4),  # 9
    Part.Circle(App.Vector(-48.1, 0, 0), App.Vector(0, 0, 1), 2.8),  # 10
    Part.Circle(App.Vector(-48.1, 0, 0), App.Vector(0, 0, 1), 1.4),  # 11
    Part.Circle(App.Vector(-96.4, -12.8, 0), App.Vector(0, 0, 1), 2.8),  # 12
    Part.Circle(App.Vector(-96.4, -12.8, 0), App.Vector(0, 0, 1), 1.4),  # 13
    Part.Circle(App.Vector(-96.4, -52.1, 0), App.Vector(0, 0, 1), 2.8),  # 14
    Part.Circle(App.Vector(-96.4, -52.1, 0), App.Vector(0, 0, 1), 1.4),  # 15
    Part.Circle(App.Vector(-36.4, -52.1, 0), App.Vector(0, 0, 1), 2.8),  # 16
    Part.Circle(App.Vector(-36.4, -52.1, 0), App.Vector(0, 0, 1), 1.4),  # 17
    Part.Circle(App.Vector(48.1, 0, 0), App.Vector(0, 0, 1), 2.8),  # 18
    Part.Circle(App.Vector(48.1, 0, 0), App.Vector(0, 0, 1), 1.4),  # 19
    Part.Circle(App.Vector(36.4, -52.1, 0), App.Vector(0, 0, 1), 2.8),  # 20
    Part.Circle(App.Vector(36.4, -52.1, 0), App.Vector(0, 0, 1), 1.4),  # 21
    Part.Circle(App.Vector(96.4, -52.1, 0), App.Vector(0, 0, 1), 2.8),  # 22
    Part.Circle(App.Vector(96.4, -52.1, 0), App.Vector(0, 0, 1), 1.4),  # 23
    Part.Circle(App.Vector(96.4, -12.8, 0), App.Vector(0, 0, 1), 2.8),  # 24
    Part.Circle(App.Vector(96.4, -12.8, 0), App.Vector(0, 0, 1), 1.4),  # 25
    Part.Circle(App.Vector(96.4, 12.8, 0), App.Vector(0, 0, 1), 2.8),  # 26
    Part.Circle(App.Vector(96.4, 12.8, 0), App.Vector(0, 0, 1), 1.4),  # 27
], False)
sketch20.addConstraint([
    Sketcher.Constraint("Coincident", 1, 3, 0, 3),
    Sketcher.Constraint("Coincident", 3, 3, 2, 3),
    Sketcher.Constraint("Coincident", 5, 3, 4, 3),
    Sketcher.Constraint("Coincident", 7, 3, 6, 3),
    Sketcher.Constraint("Coincident", 9, 3, 8, 3),
    Sketcher.Constraint("Coincident", 11, 3, 10, 3),
    Sketcher.Constraint("Coincident", 13, 3, 12, 3),
    Sketcher.Constraint("Coincident", 15, 3, 14, 3),
    Sketcher.Constraint("Coincident", 17, 3, 16, 3),
    Sketcher.Constraint("Coincident", 19, 3, 18, 3),
    Sketcher.Constraint("Coincident", 21, 3, 20, 3),
    Sketcher.Constraint("Coincident", 23, 3, 22, 3),
    Sketcher.Constraint("Coincident", 25, 3, 24, 3),
    Sketcher.Constraint("Coincident", 27, 3, 26, 3),
    Sketcher.Constraint("Equal", 0, 2),
    Sketcher.Constraint("Equal", 1, 3),
    Sketcher.Constraint("Equal", 2, 4),
    Sketcher.Constraint("Equal", 3, 5),
    Sketcher.Constraint("Equal", 4, 6),
    Sketcher.Constraint("Equal", 5, 7),
    Sketcher.Constraint("Equal", 6, 8),
    Sketcher.Constraint("Equal", 7, 9),
    Sketcher.Constraint("Equal", 8, 10),
    Sketcher.Constraint("Equal", 9, 11),
    Sketcher.Constraint("Equal", 10, 12),
    Sketcher.Constraint("Equal", 11, 13),
    Sketcher.Constraint("Equal", 12, 14),
    Sketcher.Constraint("Equal", 13, 15),
    Sketcher.Constraint("Equal", 14, 16),
    Sketcher.Constraint("Equal", 15, 17),
    Sketcher.Constraint("Equal", 16, 18),
    Sketcher.Constraint("Equal", 17, 19),
    Sketcher.Constraint("Equal", 18, 20),
    Sketcher.Constraint("Equal", 19, 21),
    Sketcher.Constraint("Equal", 20, 22),
    Sketcher.Constraint("Equal", 21, 23),
    Sketcher.Constraint("Equal", 22, 24),
    Sketcher.Constraint("Equal", 23, 25),
    Sketcher.Constraint("Equal", 24, 26),
    Sketcher.Constraint("Equal", 25, 27),
    Sketcher.Constraint("Symmetric", 6, 3, 14, 3, -1, 1),
    Sketcher.Constraint("Symmetric", 0, 3, 22, 3, -1, 1),
    Sketcher.Constraint("Symmetric", 8, 3, 24, 3, -1, 1),
    Sketcher.Constraint("Symmetric", 12, 3, 26, 3, -1, 1),
    Sketcher.Constraint("Symmetric", 0, 3, 6, 3, -2),
    Sketcher.Constraint("Symmetric", 10, 3, 18, 3, -2),
    Sketcher.Constraint("Symmetric", 12, 3, 24, 3, -2),
    Sketcher.Constraint("Symmetric", 2, 3, 16, 3, -1),
    Sketcher.Constraint("Symmetric", 4, 3, 20, 3, -1),
    Sketcher.Constraint("Horizontal", 1, 3, 2, 3),
    Sketcher.Constraint("Horizontal", 3, 3, 4, 3),
    Sketcher.Constraint("Vertical", 1, 3, 8, 3),
    Sketcher.Constraint("Diameter", 0, Q("5.5 mm")),
    Sketcher.Constraint("Diameter", 1, Q("2.8 mm")),
    Sketcher.Constraint("DistanceX", 0, 3, -1, 1, Q("96.377 mm")),
    Sketcher.Constraint("DistanceY", -1, 1, 0, 3, Q("52.1375 mm")),
    Sketcher.Constraint("DistanceX", 2, 3, -1, 1, Q("36.393 mm")),
    Sketcher.Constraint("DistanceX", -1, 1, 4, 3, Q("36.427 mm")),
    Sketcher.Constraint("DistanceY", -1, 1, 8, 3, Q("12.8125 mm")),
    Sketcher.Constraint("DistanceX", 10, 3, -1, 1, Q("48.148 mm")),
    Sketcher.Constraint("DistanceY", -1, 1, 10, 3, Q("0.0375 mm")),
])
pad4 = body.newObject("PartDesign::Pad", "Pad003")
pad4.Profile = sketch20
pad4.setExpression("Length", "Params.pad4_length")
pad4.Reversed = True

# Sketch on XY plane
sketch21 = body.newObject("Sketcher::SketchObject", "Sketch020")
sketch21.AttachmentSupport = (doc.getObject("XY_Plane"), [""])
sketch21.MapMode = "FlatFace"
sketch21.AttachmentOffset = App.Placement(App.Vector(0, 0, -0.333 * 25.4), App.Rotation())
sketch21.addGeometry([
    Part.LineSegment(App.Vector(-64.9, -18.8, 0), App.Vector(-66.4, -18.8, 0)),  # 0
    Part.ArcOfCircle(Part.Circle(App.Vector(-66.4, -20.2, 0), App.Vector(0, 0, 1), 1.3), math.radians(90), math.radians(180)),  # 1
    Part.LineSegment(App.Vector(-67.8, -20.2, 0), App.Vector(-67.8, -27.5, 0)),  # 2
    Part.ArcOfCircle(Part.Circle(App.Vector(-66.4, -27.5, 0), App.Vector(0, 0, 1), 1.3), math.radians(180), math.radians(270)),  # 3
    Part.LineSegment(App.Vector(-66.4, -28.8, 0), App.Vector(-64.9, -28.8, 0)),  # 4
    Part.ArcOfCircle(Part.Circle(App.Vector(-64.9, -27.5, 0), App.Vector(0, 0, 1), 1.3), math.radians(-90), math.radians(0)),  # 5
    Part.LineSegment(App.Vector(-63.6, -27.5, 0), App.Vector(-63.6, -20.2, 0)),  # 6
    Part.ArcOfCircle(Part.Circle(App.Vector(-64.9, -20.2, 0), App.Vector(0, 0, 1), 1.3), math.radians(0), math.radians(90)),  # 7
], False)
sketch21.addConstraint([
    Sketcher.Constraint("Tangent", 0, 2, 1, 1),
    Sketcher.Constraint("Tangent", 1, 2, 2, 1),
    Sketcher.Constraint("Tangent", 2, 2, 3, 1),
    Sketcher.Constraint("Tangent", 3, 2, 4, 1),
    Sketcher.Constraint("Tangent", 4, 2, 5, 1),
    Sketcher.Constraint("Tangent", 5, 2, 6, 1),
    Sketcher.Constraint("Tangent", 6, 2, 7, 1),
    Sketcher.Constraint("Tangent", 7, 2, 0, 1),
    Sketcher.Constraint("Horizontal", 0),
    Sketcher.Constraint("Vertical", 2),
    Sketcher.Constraint("Horizontal", 4),
    Sketcher.Constraint("Vertical", 6),
    Sketcher.Constraint("Equal", 1, 3),
    Sketcher.Constraint("Equal", 3, 5),
    Sketcher.Constraint("Equal", 5, 7),
    Sketcher.Constraint("Radius", 1, Q("1.35 mm")),
    Sketcher.Constraint("DistanceX", 0, 2, 0, 1, Q("1.5 mm")),
    Sketcher.Constraint("DistanceY", 2, 2, 2, 1, Q("7.3 mm")),
    Sketcher.Constraint("DistanceX", 1, 3, -1, 1, Q("66.43712 mm")),
    Sketcher.Constraint("DistanceY", 1, 3, -1, 1, Q("20.16202 mm")),
])
pocket17 = body.newObject("PartDesign::Pocket", "Pocket016")
pocket17.Profile = sketch21
pocket17.Type = "UpToFirst"

doc.recompute()
